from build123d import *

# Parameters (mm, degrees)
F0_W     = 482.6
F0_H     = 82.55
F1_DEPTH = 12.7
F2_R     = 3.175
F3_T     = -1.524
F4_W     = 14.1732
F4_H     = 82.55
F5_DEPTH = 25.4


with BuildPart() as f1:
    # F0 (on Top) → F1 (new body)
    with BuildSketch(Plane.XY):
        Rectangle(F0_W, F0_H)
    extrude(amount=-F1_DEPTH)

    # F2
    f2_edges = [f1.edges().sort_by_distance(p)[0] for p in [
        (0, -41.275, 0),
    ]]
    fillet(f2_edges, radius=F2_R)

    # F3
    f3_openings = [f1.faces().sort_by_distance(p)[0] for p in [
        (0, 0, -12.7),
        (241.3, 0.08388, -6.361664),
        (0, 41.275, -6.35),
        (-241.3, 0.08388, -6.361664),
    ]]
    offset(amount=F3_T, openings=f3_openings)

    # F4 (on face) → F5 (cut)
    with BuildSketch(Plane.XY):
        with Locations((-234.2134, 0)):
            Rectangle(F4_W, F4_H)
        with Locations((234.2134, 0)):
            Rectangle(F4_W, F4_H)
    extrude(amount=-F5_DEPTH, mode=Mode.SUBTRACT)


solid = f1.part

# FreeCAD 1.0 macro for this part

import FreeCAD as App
import Part
import Sketcher

V = App.Vector
Q = App.Units.Quantity


def edges_at(feature, points):
    """Names of the edges that pass closest to the given points."""
    edges = feature.Shape.Edges
    near = lambda p: min(range(len(edges)), key=lambda i: edges[i].distToShape(Part.Vertex(*p))[0])
    return sorted({f"Edge{near(p) + 1}" for p in points})


def faces_at(feature, points):
    """Names of the faces that lie closest to the given points."""
    faces = feature.Shape.Faces
    near = lambda p: min(range(len(faces)), key=lambda i: faces[i].distToShape(Part.Vertex(*p))[0])
    return sorted({f"Face{near(p) + 1}" for p in points})

doc = App.newDocument("Part")
params = doc.addObject("Spreadsheet::Sheet", "Params")
for row, (alias, value) in enumerate([
    ("sketch1_width", "19 in"),
    ("sketch1_height", "3.25 in"),
    ("pad1_length", "0.5 in"),
    ("fillet_radius", "0.125 in"),
    ("thickness_wall", "0.06 in"),
    ("sketch2_height", "3.25 in"),
    ("sketch2_width", "0.558 in"),
    ("pocket1_length", "1 in"),
], start=1):
    params.set(f"A{row}", alias)
    params.set(f"B{row}", "=" + value)
    params.setAlias(f"B{row}", alias)

body = doc.addObject("PartDesign::Body", "Body")

# Sketch on XY plane
sketch1 = doc.addObject("Sketcher::SketchObject", "Sketch")
body.addObject(sketch1)
sketch1.AttachmentSupport = (doc.XY_Plane, [""])
sketch1.MapMode = "FlatFace"
sketch1.addGeometry(Part.LineSegment(V(-241, 41, 0), V(-241, -41, 0)), False)
sketch1.addGeometry(Part.LineSegment(V(-241, -41, 0), V(241, -41, 0)), False)
sketch1.addGeometry(Part.LineSegment(V(241, -41, 0), V(241, 41, 0)), False)
sketch1.addGeometry(Part.LineSegment(V(241, 41, 0), V(-241, 41, 0)), False)
sketch1.addConstraint(Sketcher.Constraint("Coincident", 0, 2, 1, 1))
sketch1.addConstraint(Sketcher.Constraint("Coincident", 1, 2, 2, 1))
sketch1.addConstraint(Sketcher.Constraint("Coincident", 2, 2, 3, 1))
sketch1.addConstraint(Sketcher.Constraint("Coincident", 3, 2, 0, 1))
sketch1.addConstraint(Sketcher.Constraint("Vertical", 0))
sketch1.addConstraint(Sketcher.Constraint("Horizontal", 1))
sketch1.addConstraint(Sketcher.Constraint("Vertical", 2))
sketch1.addConstraint(Sketcher.Constraint("Horizontal", 3))
sketch1.addConstraint(Sketcher.Constraint("Symmetric", 0, 2, 2, 2, -1, 1))
sketch1.addConstraint(Sketcher.Constraint("DistanceX", 1, 1, 1, 2, Q("19 in")))
sketch1.addConstraint(Sketcher.Constraint("DistanceY", 0, 2, 0, 1, Q("3.25 in")))
sketch1.setExpression("Constraints[9]", "Params.sketch1_width")
sketch1.setExpression("Constraints[10]", "Params.sketch1_height")
pad1 = doc.addObject("PartDesign::Pad", "Pad")
body.addObject(pad1)
pad1.Profile = sketch1
pad1.setExpression("Length", "Params.pad1_length")
pad1.Reversed = True
doc.recompute()

fillet = doc.addObject("PartDesign::Fillet", "Fillet")
body.addObject(fillet)
fillet.Base = (pad1, edges_at(pad1, [(0, -41.275, 0)]))
fillet.setExpression("Radius", "Params.fillet_radius")
doc.recompute()

thickness = doc.addObject("PartDesign::Thickness", "Thickness")
body.addObject(thickness)
thickness.Base = (fillet, faces_at(fillet, [
    (0, 0, -12.7),
    (241.3, 0, -6.35),
    (0, 41.275, -6.35),
    (-241.3, 0, -6.35),
]))
thickness.setExpression("Value", "Params.thickness_wall")
thickness.Reversed = True
thickness.Join = "Arc"

# Sketch on XY plane
sketch2 = doc.addObject("Sketcher::SketchObject", "Sketch001")
body.addObject(sketch2)
sketch2.AttachmentSupport = (doc.XY_Plane, [""])
sketch2.MapMode = "FlatFace"
sketch2.addGeometry(Part.LineSegment(V(-241, 41, 0), V(-241, -41, 0)), False)
sketch2.addGeometry(Part.LineSegment(V(-241, -41, 0), V(-227, -41, 0)), False)
sketch2.addGeometry(Part.LineSegment(V(-227, -41, 0), V(-227, 41, 0)), False)
sketch2.addGeometry(Part.LineSegment(V(-227, 41, 0), V(-241, 41, 0)), False)
sketch2.addGeometry(Part.LineSegment(V(227, 41, 0), V(227, -41, 0)), False)
sketch2.addGeometry(Part.LineSegment(V(227, -41, 0), V(241, -41, 0)), False)
sketch2.addGeometry(Part.LineSegment(V(241, -41, 0), V(241, 41, 0)), False)
sketch2.addGeometry(Part.LineSegment(V(241, 41, 0), V(227, 41, 0)), False)
sketch2.addConstraint(Sketcher.Constraint("Coincident", 0, 2, 1, 1))
sketch2.addConstraint(Sketcher.Constraint("Coincident", 1, 2, 2, 1))
sketch2.addConstraint(Sketcher.Constraint("Coincident", 2, 2, 3, 1))
sketch2.addConstraint(Sketcher.Constraint("Coincident", 3, 2, 0, 1))
sketch2.addConstraint(Sketcher.Constraint("Coincident", 4, 2, 5, 1))
sketch2.addConstraint(Sketcher.Constraint("Coincident", 5, 2, 6, 1))
sketch2.addConstraint(Sketcher.Constraint("Coincident", 6, 2, 7, 1))
sketch2.addConstraint(Sketcher.Constraint("Coincident", 7, 2, 4, 1))
sketch2.addConstraint(Sketcher.Constraint("Vertical", 0))
sketch2.addConstraint(Sketcher.Constraint("Horizontal", 1))
sketch2.addConstraint(Sketcher.Constraint("Vertical", 2))
sketch2.addConstraint(Sketcher.Constraint("Horizontal", 3))
sketch2.addConstraint(Sketcher.Constraint("Vertical", 4))
sketch2.addConstraint(Sketcher.Constraint("Horizontal", 5))
sketch2.addConstraint(Sketcher.Constraint("Vertical", 6))
sketch2.addConstraint(Sketcher.Constraint("Horizontal", 7))
sketch2.addConstraint(Sketcher.Constraint("Symmetric", 2, 2, 4, 2, -1, 1))
sketch2.addConstraint(Sketcher.Constraint("Symmetric", 0, 2, 6, 2, -1, 1))
sketch2.addConstraint(Sketcher.Constraint("Horizontal", 1, 2, 4, 2))
sketch2.addConstraint(Sketcher.Constraint("DistanceX", 0, 2, 5, 2, Q("19 in")))
sketch2.addConstraint(Sketcher.Constraint("DistanceY", 0, 2, 0, 1, Q("3.25 in")))
sketch2.addConstraint(Sketcher.Constraint("DistanceX", 1, 1, 1, 2, Q("0.558 in")))
sketch2.setExpression("Constraints[20]", "Params.sketch2_height")
sketch2.setExpression("Constraints[21]", "Params.sketch2_width")
pocket1 = doc.addObject("PartDesign::Pocket", "Pocket")
body.addObject(pocket1)
pocket1.Profile = sketch2
pocket1.setExpression("Length", "Params.pocket1_length")

doc.recompute()
